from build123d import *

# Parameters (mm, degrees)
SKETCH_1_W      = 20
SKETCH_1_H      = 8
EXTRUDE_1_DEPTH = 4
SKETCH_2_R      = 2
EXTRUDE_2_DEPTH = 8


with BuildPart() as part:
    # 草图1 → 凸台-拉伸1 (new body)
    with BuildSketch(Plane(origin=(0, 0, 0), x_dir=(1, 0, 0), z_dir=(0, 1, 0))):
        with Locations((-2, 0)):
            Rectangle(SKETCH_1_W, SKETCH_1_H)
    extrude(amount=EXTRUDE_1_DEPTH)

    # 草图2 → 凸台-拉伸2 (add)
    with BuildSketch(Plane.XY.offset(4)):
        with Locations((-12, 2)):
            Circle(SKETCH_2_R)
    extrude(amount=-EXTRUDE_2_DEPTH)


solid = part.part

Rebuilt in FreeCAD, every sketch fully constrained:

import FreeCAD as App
import Part
import Sketcher

V = App.Vector


def add_polygon(sketch, points):
    """Adds a closed chain of lines whose ends are joined by coincident constraints."""
    first, n = sketch.GeometryCount, len(points)
    for a, b in zip(points, points[1:] + points[:1]):
        sketch.addGeometry(Part.LineSegment(App.Vector(*a, 0), App.Vector(*b, 0)), False)
    for i in range(n):
        sketch.addConstraint(Sketcher.Constraint("Coincident", first + i, 2, first + (i + 1) % n, 1))

doc = App.newDocument("Part")
body = doc.addObject("PartDesign::Body", "Body")

sketch1 = body.newObject("Sketcher::SketchObject", "Sketch")
sketch1.AttachmentSupport = (doc.getObject("XZ_Plane"), [""])
sketch1.MapMode = "FlatFace"
add_polygon(sketch1, [(-12, -4), (-12, 4), (8, 4), (8, -4)])
sketch1.addConstraint(Sketcher.Constraint("Vertical", 0))
sketch1.addConstraint(Sketcher.Constraint("Horizontal", 1))
sketch1.addConstraint(Sketcher.Constraint("Vertical", 2))
sketch1.addConstraint(Sketcher.Constraint("Horizontal", 3))
sketch1.addConstraint(Sketcher.Constraint("DistanceX", 1, 1, 1, 2, 20.0))
sketch1.addConstraint(Sketcher.Constraint("DistanceY", 0, 1, 0, 2, 8.0))
sketch1.addConstraint(Sketcher.Constraint("DistanceX", 0, 2, -1, 1, 12.0))
sketch1.addConstraint(Sketcher.Constraint("DistanceY", -1, 1, 0, 2, 4.0))
pad1 = body.newObject("PartDesign::Pad", "Pad")
pad1.Profile = sketch1
pad1.Length = 4
pad1.Reversed = True

sketch2 = body.newObject("Sketcher::SketchObject", "Sketch001")
sketch2.AttachmentSupport = (doc.getObject("XY_Plane"), [""])
sketch2.MapMode = "FlatFace"
sketch2.AttachmentOffset = App.Placement(V(0, 0, 4), App.Rotation())
sketch2.addGeometry(Part.Circle(V(-12, 2, 0), V(0, 0, 1), 2), False)
sketch2.addConstraint(Sketcher.Constraint("Diameter", 0, 4.0))
sketch2.addConstraint(Sketcher.Constraint("DistanceX", 0, 3, -1, 1, 12.0))
sketch2.addConstraint(Sketcher.Constraint("DistanceY", -1, 1, 0, 3, 2.0))
pad2 = body.newObject("PartDesign::Pad", "Pad001")
pad2.Profile = sketch2
pad2.Length = 8
pad2.Reversed = True

doc.recompute()
